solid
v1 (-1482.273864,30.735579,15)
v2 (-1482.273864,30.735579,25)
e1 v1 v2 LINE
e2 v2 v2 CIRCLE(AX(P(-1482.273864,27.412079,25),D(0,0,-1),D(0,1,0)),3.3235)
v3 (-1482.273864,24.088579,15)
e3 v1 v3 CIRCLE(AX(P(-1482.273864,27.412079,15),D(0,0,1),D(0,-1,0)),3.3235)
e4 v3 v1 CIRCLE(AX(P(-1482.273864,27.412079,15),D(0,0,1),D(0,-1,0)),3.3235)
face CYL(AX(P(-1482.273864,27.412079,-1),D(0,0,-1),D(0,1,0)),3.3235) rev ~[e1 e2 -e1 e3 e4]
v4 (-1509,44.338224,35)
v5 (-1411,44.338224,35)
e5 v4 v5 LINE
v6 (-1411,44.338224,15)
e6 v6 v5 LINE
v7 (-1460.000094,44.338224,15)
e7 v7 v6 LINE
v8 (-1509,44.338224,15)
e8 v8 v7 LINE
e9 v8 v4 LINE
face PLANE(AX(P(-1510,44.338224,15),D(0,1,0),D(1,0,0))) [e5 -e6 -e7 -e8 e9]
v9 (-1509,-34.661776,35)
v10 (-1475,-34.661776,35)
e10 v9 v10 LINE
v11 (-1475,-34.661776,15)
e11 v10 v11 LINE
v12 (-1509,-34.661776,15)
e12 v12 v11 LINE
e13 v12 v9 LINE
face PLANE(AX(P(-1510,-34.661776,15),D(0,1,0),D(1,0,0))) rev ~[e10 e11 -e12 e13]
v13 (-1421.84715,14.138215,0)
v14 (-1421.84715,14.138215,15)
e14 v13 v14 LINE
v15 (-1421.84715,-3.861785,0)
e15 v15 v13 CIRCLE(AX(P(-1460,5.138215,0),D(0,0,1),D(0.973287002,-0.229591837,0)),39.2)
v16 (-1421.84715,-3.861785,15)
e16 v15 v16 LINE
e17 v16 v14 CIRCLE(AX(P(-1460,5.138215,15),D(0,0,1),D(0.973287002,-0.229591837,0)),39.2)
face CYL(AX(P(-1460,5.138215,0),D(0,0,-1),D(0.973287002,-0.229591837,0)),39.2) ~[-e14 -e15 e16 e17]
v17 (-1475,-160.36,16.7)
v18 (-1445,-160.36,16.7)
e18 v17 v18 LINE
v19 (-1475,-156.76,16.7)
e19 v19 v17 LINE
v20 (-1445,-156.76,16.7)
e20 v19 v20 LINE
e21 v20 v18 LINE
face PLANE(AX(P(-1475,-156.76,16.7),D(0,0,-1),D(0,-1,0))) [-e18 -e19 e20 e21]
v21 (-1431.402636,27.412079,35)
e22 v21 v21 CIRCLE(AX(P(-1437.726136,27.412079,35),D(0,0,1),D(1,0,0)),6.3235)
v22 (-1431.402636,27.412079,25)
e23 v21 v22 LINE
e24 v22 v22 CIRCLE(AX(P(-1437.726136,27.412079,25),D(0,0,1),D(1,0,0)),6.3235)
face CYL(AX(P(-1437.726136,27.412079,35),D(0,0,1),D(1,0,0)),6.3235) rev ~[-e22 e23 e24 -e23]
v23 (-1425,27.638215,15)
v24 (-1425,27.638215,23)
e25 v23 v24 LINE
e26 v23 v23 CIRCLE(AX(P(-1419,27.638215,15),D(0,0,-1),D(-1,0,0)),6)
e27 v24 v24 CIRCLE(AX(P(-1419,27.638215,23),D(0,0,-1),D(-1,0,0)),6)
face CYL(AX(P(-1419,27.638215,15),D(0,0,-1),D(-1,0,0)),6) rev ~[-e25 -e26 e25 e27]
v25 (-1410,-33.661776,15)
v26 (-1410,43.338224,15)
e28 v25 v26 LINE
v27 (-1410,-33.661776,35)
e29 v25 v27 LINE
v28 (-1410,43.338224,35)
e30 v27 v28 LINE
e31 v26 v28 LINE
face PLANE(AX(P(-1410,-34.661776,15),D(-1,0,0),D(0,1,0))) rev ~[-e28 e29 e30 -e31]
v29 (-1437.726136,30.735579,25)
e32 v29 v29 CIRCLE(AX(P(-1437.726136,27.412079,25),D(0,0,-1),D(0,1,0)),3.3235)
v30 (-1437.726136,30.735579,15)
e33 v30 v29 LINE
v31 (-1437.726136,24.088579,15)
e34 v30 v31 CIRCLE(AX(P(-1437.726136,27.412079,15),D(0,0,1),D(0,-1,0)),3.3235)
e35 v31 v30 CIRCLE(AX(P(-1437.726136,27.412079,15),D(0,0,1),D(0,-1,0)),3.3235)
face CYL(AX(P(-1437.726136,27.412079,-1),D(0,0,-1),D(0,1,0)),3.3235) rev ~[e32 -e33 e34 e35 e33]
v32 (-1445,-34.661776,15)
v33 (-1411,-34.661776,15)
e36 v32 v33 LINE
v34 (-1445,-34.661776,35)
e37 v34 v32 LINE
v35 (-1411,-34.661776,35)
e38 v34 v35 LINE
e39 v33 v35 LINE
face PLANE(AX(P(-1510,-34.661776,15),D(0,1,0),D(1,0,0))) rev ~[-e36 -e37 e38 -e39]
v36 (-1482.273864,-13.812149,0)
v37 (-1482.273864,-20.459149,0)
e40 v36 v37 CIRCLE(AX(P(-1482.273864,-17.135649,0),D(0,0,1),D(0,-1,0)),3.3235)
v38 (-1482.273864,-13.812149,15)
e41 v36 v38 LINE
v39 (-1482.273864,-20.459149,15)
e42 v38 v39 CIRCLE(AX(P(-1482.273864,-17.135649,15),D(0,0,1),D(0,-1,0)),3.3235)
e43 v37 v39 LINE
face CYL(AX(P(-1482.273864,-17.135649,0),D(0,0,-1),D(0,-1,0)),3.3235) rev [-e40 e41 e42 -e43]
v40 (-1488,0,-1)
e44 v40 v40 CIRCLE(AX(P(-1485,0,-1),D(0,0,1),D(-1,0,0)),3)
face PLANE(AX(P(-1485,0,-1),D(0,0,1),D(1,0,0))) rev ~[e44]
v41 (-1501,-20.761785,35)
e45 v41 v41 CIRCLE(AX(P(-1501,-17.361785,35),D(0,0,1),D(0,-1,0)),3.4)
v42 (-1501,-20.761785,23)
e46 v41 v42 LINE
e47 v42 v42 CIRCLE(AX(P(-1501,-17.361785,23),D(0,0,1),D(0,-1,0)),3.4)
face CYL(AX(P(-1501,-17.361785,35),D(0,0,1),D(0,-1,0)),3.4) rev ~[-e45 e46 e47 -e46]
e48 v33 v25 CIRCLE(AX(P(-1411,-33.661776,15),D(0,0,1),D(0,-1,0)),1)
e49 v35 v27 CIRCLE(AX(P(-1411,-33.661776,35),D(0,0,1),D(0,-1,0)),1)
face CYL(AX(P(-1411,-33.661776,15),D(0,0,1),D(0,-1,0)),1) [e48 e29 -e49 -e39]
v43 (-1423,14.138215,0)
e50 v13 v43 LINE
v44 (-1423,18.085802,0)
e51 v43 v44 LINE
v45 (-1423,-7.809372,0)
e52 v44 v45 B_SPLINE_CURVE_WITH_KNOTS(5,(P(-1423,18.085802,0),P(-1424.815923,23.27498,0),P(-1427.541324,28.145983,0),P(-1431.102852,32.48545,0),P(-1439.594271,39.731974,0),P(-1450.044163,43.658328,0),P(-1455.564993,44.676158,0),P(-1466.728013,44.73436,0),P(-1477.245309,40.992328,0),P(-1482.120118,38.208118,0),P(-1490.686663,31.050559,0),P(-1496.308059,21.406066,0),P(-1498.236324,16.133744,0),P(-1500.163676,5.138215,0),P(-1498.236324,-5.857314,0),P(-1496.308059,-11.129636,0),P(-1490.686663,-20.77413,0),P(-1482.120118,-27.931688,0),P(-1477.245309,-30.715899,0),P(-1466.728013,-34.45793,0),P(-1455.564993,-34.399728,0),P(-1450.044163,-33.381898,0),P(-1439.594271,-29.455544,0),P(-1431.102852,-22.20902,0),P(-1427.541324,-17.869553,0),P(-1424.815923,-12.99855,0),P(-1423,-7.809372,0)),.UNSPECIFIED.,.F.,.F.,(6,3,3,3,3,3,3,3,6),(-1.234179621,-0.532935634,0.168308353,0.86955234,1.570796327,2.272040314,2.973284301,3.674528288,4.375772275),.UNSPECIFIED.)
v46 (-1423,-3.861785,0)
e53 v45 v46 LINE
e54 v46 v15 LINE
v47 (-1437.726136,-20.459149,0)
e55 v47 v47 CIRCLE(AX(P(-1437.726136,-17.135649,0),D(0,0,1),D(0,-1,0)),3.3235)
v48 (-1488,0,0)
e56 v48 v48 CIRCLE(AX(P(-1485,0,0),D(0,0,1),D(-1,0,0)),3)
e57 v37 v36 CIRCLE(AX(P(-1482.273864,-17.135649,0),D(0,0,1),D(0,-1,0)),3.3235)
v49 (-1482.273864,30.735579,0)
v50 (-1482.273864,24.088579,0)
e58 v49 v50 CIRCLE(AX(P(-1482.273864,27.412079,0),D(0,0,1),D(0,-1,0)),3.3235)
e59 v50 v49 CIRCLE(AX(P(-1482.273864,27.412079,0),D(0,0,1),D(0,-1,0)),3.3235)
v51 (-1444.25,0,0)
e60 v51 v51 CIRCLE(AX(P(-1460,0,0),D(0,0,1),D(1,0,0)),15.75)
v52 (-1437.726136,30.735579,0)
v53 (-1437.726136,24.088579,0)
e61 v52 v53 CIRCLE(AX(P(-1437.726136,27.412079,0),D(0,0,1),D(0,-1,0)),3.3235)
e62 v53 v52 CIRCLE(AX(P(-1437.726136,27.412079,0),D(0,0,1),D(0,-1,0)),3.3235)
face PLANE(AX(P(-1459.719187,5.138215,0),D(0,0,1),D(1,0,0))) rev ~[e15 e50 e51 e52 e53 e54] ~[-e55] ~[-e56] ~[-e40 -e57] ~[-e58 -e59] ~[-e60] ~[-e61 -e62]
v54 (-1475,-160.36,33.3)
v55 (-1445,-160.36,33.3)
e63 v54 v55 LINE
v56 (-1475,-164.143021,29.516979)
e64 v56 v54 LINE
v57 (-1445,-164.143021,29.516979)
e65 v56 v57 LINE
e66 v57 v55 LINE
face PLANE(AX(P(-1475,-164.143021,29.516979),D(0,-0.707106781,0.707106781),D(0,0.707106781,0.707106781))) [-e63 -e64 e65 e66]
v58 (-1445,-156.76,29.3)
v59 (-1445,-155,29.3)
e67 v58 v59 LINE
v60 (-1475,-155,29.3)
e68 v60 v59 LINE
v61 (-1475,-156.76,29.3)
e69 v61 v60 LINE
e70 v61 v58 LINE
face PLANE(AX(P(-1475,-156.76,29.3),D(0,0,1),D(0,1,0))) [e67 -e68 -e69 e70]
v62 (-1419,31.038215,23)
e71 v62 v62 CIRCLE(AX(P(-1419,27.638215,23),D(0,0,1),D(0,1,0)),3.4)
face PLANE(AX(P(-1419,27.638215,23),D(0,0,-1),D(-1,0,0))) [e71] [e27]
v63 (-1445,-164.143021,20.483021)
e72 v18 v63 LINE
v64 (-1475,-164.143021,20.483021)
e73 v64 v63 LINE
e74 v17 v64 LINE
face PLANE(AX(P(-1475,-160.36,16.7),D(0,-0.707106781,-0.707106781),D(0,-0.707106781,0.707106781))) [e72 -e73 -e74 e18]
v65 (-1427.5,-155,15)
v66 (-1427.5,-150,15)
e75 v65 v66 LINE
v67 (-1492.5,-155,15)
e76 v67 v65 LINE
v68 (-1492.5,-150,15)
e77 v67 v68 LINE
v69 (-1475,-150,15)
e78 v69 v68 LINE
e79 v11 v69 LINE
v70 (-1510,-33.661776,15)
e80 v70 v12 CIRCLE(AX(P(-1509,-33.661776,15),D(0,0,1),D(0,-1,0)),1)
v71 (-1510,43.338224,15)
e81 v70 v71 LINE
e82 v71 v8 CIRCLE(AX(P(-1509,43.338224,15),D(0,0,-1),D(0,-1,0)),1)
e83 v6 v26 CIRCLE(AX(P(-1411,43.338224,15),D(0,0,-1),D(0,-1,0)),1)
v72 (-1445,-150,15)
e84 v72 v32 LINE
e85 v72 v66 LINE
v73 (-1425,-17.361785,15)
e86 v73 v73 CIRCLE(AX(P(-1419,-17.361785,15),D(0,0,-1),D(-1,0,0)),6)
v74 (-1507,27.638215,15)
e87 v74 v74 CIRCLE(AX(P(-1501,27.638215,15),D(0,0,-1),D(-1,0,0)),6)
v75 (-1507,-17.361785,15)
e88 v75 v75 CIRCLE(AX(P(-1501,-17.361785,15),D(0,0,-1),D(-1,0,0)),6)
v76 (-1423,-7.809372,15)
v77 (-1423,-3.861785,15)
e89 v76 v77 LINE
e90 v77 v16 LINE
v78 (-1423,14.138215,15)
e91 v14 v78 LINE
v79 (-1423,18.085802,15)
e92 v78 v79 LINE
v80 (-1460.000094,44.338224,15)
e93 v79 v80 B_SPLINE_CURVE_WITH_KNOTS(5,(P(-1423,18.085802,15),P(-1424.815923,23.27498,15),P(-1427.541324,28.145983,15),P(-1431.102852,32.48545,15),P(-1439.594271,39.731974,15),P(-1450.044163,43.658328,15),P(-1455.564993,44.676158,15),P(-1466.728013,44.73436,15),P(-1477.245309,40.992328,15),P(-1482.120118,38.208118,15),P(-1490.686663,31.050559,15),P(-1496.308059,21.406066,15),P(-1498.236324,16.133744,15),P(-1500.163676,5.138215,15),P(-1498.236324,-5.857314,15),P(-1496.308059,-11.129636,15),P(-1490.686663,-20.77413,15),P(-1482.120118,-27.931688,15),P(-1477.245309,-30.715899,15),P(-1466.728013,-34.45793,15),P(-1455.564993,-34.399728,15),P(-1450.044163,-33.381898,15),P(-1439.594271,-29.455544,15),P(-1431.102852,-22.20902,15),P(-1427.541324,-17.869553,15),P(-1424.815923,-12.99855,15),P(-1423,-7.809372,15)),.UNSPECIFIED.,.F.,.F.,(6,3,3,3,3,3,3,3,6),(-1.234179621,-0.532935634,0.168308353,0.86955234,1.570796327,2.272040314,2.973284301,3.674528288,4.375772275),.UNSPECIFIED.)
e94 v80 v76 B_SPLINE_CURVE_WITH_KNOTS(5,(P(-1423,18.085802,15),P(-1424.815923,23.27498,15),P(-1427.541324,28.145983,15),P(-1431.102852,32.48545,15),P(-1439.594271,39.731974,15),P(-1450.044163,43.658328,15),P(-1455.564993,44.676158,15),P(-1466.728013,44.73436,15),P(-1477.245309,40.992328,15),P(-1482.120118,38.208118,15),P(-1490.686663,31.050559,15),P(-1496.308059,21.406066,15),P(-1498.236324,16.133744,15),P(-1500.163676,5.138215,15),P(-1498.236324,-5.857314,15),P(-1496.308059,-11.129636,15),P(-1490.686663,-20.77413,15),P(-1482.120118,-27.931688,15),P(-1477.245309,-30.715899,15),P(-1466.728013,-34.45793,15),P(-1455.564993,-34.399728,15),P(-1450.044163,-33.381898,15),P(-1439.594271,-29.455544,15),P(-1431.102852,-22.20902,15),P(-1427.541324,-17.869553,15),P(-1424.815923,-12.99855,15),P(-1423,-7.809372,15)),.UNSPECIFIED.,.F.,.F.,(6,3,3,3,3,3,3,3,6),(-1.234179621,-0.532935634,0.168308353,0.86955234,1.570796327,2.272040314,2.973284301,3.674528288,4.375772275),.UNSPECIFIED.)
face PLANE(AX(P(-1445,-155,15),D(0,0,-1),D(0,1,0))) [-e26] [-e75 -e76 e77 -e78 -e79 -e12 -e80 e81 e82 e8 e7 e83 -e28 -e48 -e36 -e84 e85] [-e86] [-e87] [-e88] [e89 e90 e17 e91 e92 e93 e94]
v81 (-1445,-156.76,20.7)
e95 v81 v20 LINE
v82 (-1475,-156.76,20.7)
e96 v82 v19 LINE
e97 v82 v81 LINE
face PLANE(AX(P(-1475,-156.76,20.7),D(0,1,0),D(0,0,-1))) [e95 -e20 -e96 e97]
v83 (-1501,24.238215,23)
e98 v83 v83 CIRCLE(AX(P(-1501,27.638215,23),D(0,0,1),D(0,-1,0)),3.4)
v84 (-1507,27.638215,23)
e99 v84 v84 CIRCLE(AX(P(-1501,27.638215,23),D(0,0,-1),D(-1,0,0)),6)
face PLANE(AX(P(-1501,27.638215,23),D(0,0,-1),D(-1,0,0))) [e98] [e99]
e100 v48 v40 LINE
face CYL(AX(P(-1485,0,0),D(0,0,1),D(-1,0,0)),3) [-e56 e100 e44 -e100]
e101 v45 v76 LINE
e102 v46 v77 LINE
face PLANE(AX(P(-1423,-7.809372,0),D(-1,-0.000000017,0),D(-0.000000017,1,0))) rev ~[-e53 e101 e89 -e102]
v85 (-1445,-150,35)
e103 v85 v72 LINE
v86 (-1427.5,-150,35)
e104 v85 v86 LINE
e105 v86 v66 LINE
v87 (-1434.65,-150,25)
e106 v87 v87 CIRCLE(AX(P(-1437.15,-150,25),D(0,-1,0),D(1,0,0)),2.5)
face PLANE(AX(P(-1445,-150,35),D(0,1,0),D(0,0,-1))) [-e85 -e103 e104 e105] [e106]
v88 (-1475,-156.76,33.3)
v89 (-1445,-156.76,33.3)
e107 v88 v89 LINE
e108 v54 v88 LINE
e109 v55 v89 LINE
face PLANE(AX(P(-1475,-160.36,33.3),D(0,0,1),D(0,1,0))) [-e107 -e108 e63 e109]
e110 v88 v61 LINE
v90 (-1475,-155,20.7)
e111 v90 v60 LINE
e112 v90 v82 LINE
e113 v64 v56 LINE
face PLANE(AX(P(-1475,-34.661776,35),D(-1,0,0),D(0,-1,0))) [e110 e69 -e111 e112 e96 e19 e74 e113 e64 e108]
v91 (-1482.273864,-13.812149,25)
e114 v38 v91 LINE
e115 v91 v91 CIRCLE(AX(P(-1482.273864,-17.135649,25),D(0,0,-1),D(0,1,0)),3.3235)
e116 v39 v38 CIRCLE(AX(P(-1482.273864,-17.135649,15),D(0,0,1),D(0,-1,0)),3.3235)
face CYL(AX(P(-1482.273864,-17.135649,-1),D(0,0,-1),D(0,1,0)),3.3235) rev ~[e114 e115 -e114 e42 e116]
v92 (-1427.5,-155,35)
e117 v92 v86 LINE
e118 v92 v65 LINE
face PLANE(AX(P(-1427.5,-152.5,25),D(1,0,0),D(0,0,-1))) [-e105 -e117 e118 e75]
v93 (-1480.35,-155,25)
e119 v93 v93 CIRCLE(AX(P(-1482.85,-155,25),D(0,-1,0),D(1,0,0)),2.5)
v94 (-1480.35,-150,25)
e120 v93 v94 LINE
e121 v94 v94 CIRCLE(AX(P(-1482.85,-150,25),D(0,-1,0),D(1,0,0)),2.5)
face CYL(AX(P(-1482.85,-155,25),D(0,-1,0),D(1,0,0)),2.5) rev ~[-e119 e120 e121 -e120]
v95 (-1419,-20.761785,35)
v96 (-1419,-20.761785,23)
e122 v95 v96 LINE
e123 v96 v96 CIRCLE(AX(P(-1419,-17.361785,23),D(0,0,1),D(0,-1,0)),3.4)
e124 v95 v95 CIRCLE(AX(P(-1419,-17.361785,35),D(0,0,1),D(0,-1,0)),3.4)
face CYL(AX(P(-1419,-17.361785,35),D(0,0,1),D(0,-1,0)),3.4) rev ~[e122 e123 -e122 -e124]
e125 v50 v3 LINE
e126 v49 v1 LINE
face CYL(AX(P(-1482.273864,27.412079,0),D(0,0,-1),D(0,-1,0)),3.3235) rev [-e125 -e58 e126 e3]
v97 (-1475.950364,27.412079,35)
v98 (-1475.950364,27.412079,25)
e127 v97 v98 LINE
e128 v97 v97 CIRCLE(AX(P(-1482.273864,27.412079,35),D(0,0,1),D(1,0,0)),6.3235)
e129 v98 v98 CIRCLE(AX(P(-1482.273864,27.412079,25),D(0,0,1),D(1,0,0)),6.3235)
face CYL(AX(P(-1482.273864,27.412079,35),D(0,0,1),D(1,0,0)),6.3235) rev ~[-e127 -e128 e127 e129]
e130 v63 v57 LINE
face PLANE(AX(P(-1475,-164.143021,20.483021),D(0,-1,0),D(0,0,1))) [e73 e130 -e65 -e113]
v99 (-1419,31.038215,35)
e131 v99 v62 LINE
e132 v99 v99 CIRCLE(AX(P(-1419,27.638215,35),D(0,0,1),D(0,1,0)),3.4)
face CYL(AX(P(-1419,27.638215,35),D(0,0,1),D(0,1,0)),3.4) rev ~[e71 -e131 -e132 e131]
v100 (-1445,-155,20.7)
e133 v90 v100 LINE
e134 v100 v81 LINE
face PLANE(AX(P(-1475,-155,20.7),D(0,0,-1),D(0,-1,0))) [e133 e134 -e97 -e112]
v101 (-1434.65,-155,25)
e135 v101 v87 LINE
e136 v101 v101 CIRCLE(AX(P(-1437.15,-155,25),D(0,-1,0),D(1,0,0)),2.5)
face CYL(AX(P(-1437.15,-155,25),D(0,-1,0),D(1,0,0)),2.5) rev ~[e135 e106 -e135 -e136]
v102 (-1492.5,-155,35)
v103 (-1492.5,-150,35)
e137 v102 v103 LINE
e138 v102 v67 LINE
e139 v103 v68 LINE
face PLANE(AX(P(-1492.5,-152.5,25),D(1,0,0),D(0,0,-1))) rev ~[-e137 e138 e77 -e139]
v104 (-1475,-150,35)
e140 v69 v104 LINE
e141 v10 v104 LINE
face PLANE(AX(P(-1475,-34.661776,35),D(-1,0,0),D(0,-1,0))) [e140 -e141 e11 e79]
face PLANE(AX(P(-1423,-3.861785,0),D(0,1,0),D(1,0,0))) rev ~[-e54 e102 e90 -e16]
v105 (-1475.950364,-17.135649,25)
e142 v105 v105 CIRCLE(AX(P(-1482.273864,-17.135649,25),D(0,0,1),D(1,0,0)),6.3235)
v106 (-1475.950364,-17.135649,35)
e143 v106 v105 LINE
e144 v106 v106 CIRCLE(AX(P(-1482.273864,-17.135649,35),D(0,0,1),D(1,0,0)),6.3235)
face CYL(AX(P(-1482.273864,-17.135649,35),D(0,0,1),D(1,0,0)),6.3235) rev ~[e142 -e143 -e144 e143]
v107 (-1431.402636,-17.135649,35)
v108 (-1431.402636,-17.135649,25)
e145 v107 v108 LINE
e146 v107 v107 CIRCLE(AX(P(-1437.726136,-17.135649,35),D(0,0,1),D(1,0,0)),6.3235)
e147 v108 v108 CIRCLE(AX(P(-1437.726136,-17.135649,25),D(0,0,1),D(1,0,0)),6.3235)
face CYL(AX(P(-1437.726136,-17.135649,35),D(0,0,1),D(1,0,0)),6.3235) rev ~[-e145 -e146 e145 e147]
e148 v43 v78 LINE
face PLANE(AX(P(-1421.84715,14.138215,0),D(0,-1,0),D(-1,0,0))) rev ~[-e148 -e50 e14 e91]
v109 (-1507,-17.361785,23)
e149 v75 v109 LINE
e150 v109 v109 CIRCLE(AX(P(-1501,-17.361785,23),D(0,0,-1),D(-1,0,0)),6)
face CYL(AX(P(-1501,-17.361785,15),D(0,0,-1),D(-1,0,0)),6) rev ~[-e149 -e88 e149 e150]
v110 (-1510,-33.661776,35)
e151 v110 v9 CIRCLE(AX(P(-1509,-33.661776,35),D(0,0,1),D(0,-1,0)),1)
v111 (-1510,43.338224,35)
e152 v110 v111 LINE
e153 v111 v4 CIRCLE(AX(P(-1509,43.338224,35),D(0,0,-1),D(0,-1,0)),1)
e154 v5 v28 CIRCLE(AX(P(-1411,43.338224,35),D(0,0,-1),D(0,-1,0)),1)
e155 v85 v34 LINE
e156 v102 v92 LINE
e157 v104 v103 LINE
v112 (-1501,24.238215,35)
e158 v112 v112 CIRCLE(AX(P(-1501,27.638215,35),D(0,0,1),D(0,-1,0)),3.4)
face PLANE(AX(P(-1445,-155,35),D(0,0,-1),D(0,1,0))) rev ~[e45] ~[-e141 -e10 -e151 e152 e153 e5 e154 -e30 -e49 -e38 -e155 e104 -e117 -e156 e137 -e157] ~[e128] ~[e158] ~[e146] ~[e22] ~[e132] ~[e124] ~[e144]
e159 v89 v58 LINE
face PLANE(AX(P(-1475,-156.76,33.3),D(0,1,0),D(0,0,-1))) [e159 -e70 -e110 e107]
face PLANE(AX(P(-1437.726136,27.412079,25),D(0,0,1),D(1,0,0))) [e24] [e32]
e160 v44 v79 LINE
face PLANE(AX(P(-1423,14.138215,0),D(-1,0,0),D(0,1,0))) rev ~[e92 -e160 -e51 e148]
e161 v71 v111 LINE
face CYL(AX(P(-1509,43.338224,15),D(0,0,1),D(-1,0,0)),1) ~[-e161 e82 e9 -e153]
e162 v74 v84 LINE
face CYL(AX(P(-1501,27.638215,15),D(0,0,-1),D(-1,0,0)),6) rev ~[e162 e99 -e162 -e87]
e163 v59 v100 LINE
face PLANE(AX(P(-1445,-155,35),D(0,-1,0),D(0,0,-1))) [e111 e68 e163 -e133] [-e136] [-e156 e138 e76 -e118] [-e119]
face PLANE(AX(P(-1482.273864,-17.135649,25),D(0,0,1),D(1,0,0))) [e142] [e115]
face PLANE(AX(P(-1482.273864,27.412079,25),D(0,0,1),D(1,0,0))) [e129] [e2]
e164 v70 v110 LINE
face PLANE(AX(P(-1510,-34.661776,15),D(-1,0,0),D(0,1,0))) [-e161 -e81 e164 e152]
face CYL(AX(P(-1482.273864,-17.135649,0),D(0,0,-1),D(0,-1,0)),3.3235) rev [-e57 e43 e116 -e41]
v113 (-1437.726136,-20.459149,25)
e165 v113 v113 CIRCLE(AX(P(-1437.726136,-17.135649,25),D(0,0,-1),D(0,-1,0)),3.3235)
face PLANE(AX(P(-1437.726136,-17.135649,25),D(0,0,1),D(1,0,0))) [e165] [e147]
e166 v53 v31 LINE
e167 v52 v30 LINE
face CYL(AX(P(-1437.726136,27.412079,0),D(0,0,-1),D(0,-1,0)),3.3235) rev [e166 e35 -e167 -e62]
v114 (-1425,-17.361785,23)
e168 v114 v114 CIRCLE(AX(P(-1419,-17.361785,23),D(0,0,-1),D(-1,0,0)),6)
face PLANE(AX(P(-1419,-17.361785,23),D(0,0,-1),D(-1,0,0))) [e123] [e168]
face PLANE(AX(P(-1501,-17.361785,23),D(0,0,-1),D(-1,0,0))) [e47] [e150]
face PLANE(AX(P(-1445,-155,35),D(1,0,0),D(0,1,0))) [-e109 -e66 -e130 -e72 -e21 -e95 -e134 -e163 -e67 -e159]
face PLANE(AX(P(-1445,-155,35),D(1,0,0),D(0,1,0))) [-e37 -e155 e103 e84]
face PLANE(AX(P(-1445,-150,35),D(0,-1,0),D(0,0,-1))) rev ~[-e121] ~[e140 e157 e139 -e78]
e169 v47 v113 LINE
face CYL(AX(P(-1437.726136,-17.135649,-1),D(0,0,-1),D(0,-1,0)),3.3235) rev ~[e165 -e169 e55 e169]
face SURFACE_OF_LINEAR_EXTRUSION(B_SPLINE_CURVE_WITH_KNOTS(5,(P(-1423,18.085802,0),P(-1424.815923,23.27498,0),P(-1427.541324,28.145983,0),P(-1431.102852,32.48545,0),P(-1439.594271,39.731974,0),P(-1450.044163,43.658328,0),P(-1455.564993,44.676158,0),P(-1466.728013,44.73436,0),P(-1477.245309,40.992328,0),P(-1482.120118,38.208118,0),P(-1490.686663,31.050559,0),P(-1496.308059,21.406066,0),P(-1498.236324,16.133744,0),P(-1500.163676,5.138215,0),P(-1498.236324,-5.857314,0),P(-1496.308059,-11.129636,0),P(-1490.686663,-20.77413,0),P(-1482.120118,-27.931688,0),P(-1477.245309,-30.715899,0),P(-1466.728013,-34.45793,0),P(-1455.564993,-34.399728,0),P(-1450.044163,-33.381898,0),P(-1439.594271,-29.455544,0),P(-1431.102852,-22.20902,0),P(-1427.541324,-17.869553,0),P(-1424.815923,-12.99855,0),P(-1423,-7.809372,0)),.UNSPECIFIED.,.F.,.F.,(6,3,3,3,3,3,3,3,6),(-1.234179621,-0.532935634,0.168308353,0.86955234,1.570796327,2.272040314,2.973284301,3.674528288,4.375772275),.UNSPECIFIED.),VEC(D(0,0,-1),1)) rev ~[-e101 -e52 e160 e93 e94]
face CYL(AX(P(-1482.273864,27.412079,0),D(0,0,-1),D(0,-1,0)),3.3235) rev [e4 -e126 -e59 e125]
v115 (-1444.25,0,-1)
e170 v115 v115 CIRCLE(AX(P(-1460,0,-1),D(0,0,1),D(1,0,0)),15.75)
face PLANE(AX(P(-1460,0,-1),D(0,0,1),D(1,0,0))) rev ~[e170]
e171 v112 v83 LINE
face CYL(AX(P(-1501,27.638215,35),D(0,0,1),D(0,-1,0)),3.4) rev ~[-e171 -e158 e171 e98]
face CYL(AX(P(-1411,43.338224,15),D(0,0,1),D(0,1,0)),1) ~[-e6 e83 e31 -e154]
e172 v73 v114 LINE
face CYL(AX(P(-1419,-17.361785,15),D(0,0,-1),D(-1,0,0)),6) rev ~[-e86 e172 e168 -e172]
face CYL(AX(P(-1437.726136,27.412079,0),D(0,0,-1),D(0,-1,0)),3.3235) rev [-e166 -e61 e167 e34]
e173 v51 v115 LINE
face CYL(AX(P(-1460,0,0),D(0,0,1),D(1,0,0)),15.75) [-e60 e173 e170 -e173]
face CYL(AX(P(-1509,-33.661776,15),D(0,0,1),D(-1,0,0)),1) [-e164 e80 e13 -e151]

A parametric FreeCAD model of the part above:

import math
import FreeCAD as App
import Part
import Sketcher
from FreeCAD import Vector
Q = App.Units.Quantity


def edges_at(feature, points):
    """Names of the edges that pass closest to the given points."""
    edges = feature.Shape.Edges
    near = lambda p: min(range(len(edges)), key=lambda i: edges[i].distToShape(Part.Vertex(*p))[0])
    return sorted({f"Edge{near(p) + 1}" for p in points})


def add_polygon(sketch, points):
    """Adds a closed chain of lines whose ends are joined by coincident constraints."""
    first, n = sketch.GeometryCount, len(points)
    for a, b in zip(points, points[1:] + points[:1]):
        sketch.addGeometry(Part.LineSegment(App.Vector(*a, 0), App.Vector(*b, 0)), False)
    for i in range(n):
        sketch.addConstraint(Sketcher.Constraint("Coincident", first + i, 2, first + (i + 1) % n, 1))

doc = App.newDocument("Part")
body = doc.addObject("PartDesign::Body", "Body")

# Sketch on XY plane
sketch1 = body.newObject("Sketcher::SketchObject", "Sketch")
sketch1.AttachmentSupport = (doc.getObject("XY_Plane"), [""])
sketch1.MapMode = "FlatFace"
sketch1.addGeometry(Part.Circle(Vector(-1485, 0, 0), Vector(0, 0, 1), 3), False)
sketch1.addConstraint([
    Sketcher.Constraint("PointOnObject", 0, 3, -1),
    Sketcher.Constraint("Diameter", 0, Q("6 mm")),
    Sketcher.Constraint("DistanceX", 0, 3, -1, 1, Q("1485 mm")),
])
pad1 = body.newObject("PartDesign::Pad", "Pad")
pad1.Profile = sketch1
pad1.Length = 1
pad1.Reversed = True
body2 = doc.addObject("PartDesign::Body", "Body001")

# Sketch on XY plane
sketch2 = body2.newObject("Sketcher::SketchObject", "Sketch001")
sketch2.AttachmentSupport = (doc.getObject("XY_Plane001"), [""])
sketch2.MapMode = "FlatFace"
sketch2.addGeometry(Part.Circle(Vector(-1460, 0, 0), Vector(0, 0, 1), 16), False)
sketch2.addConstraint([
    Sketcher.Constraint("PointOnObject", 0, 3, -1),
    Sketcher.Constraint("Diameter", 0, Q("31.5 mm")),
    Sketcher.Constraint("DistanceX", 0, 3, -1, 1, Q("1460 mm")),
])
pad2 = body2.newObject("PartDesign::Pad", "Pad001")
pad2.Profile = sketch2
pad2.Length = 1
pad2.Reversed = True
body.AllowCompound = True
doc.recompute()

boolean = body.newObject("PartDesign::Boolean", "Boolean")
boolean.Type = "Fuse"
boolean.addObjects([body2])

# Sketch on XY plane
sketch3 = body.newObject("Sketcher::SketchObject", "Sketch002")
sketch3.AttachmentSupport = (doc.getObject("XY_Plane"), [""])
sketch3.MapMode = "FlatFace"
sketch3.addGeometry([
    Part.LineSegment(Vector(-1423, 14.138215, 0), Vector(-1423, 18.085802, 0)),  # 0
    Part.BSplineCurve([Vector(-1423, 18.085802, 0), Vector(-1424.815923, 23.27498, 0), Vector(-1427.541324, 28.145983, 0), Vector(-1431.102852, 32.48545, 0), Vector(-1439.594271, 39.731974, 0), Vector(-1450.044163, 43.658328, 0), Vector(-1455.564993, 44.676158, 0), Vector(-1466.728013, 44.73436, 0), Vector(-1477.245309, 40.992328, 0), Vector(-1482.120118, 38.208118, 0), Vector(-1490.686663, 31.050559, 0), Vector(-1496.308059, 21.406066, 0), Vector(-1498.236324, 16.133744, 0), Vector(-1500.163676, 5.138215, 0), Vector(-1498.236324, -5.857314, 0), Vector(-1496.308059, -11.129636, 0), Vector(-1490.686663, -20.77413, 0), Vector(-1482.120118, -27.931688, 0), Vector(-1477.245309, -30.715899, 0), Vector(-1466.728013, -34.45793, 0), Vector(-1455.564993, -34.399728, 0), Vector(-1450.044163, -33.381898, 0), Vector(-1439.594271, -29.455544, 0), Vector(-1431.102852, -22.20902, 0), Vector(-1427.541324, -17.869553, 0), Vector(-1424.815923, -12.99855, 0), Vector(-1423, -7.809372, 0)], [6, 3, 3, 3, 3, 3, 3, 3, 6], [-1.234179621, -0.532935634, 0.168308353, 0.86955234, 1.570796327, 2.272040314, 2.973284301, 3.674528288, 4.375772275], False, 5, [1, 1, 1, 1, 1, 1, 1, 1, 1, 1, 1, 1, 1, 1, 1, 1, 1, 1, 1, 1, 1, 1, 1, 1, 1, 1, 1], False),  # 1
    Part.LineSegment(Vector(-1423, -7.809372, 0), Vector(-1423, -3.861785, 0)),  # 2
    Part.LineSegment(Vector(-1423, -3.861785, 0), Vector(-1421.84715, -3.861785, 0)),  # 3
    Part.ArcOfCircle(Part.Circle(Vector(-1460, 5.138215, 0), Vector(0, 0, 1), 39.2), math.radians(-13.273043), math.radians(13.273043)),  # 4
    Part.LineSegment(Vector(-1421.84715, 14.138215, 0), Vector(-1423, 14.138215, 0)),  # 5
    Part.Circle(Vector(-1482.273864, -17.135649, 0), Vector(0, 0, 1), 3.3235),  # 6
    Part.Circle(Vector(-1437.726136, -17.135649, 0), Vector(0, 0, 1), 3.3235),  # 7
    Part.Circle(Vector(-1482.273864, 27.412079, 0), Vector(0, 0, 1), 3.3235),  # 8
    Part.Circle(Vector(-1437.726136, 27.412079, 0), Vector(0, 0, 1), 3.3235),  # 9
], False)
sketch3.addConstraint([
    Sketcher.Constraint("Block", 1),
    Sketcher.Constraint("Coincident", 0, 2, 1, 1),
    Sketcher.Constraint("Coincident", 1, 2, 2, 1),
    Sketcher.Constraint("Coincident", 2, 2, 3, 1),
    Sketcher.Constraint("Coincident", 3, 2, 4, 1),
    Sketcher.Constraint("Coincident", 4, 2, 5, 1),
    Sketcher.Constraint("Coincident", 5, 2, 0, 1),
    Sketcher.Constraint("Vertical", 0),
    Sketcher.Constraint("Vertical", 2),
    Sketcher.Constraint("Horizontal", 3),
    Sketcher.Constraint("Horizontal", 5),
    Sketcher.Constraint("Equal", 6, 7),
    Sketcher.Constraint("Equal", 7, 8),
    Sketcher.Constraint("Equal", 8, 9),
    Sketcher.Constraint("Horizontal", 6, 3, 7, 3),
    Sketcher.Constraint("Horizontal", 8, 3, 9, 3),
    Sketcher.Constraint("Vertical", 6, 3, 8, 3),
    Sketcher.Constraint("Vertical", 7, 3, 9, 3),
    Sketcher.Constraint("Vertical", 3, 2, 4, 2),
    Sketcher.Constraint("Equal", 0, 2),
    Sketcher.Constraint("Radius", 4, Q("39.2 mm")),
    Sketcher.Constraint("Diameter", 6, Q("6.647 mm")),
    Sketcher.Constraint("DistanceX", 4, 3, -1, 1, Q("1460 mm")),
    Sketcher.Constraint("DistanceY", 2, 2, 4, 3, Q("9 mm")),
    Sketcher.Constraint("DistanceY", 6, 3, -1, 1, Q("17.135649 mm")),
    Sketcher.Constraint("DistanceY", -1, 1, 8, 3, Q("27.412079 mm")),
    Sketcher.Constraint("DistanceX", 6, 3, -1, 1, Q("1482.273864 mm")),
    Sketcher.Constraint("DistanceX", 7, 3, -1, 1, Q("1437.726136 mm")),
])
pad3 = body.newObject("PartDesign::Pad", "Pad002")
pad3.Profile = sketch3
pad3.Length = 15

# Sketch on XY plane
sketch4 = body.newObject("Sketcher::SketchObject", "Sketch003")
sketch4.AttachmentSupport = (doc.getObject("XY_Plane"), [""])
sketch4.MapMode = "FlatFace"
sketch4.AttachmentOffset = App.Placement(Vector(0, 0, 15), App.Rotation())
add_polygon(sketch4, [(-1510, 44), (-1510, -35), (-1410, -35), (-1410, 44)])  # lines 0-3
sketch4.addConstraint([
    Sketcher.Constraint("Vertical", 0),
    Sketcher.Constraint("Horizontal", 1),
    Sketcher.Constraint("Vertical", 2),
    Sketcher.Constraint("Horizontal", 3),
    Sketcher.Constraint("DistanceX", 1, 1, 1, 2, Q("100 mm")),
    Sketcher.Constraint("DistanceY", 0, 2, 0, 1, Q("79 mm")),
    Sketcher.Constraint("DistanceX", 0, 2, -1, 1, Q("1510 mm")),
    Sketcher.Constraint("DistanceY", 0, 2, -1, 1, Q("34.661776 mm")),
])
pad4 = body.newObject("PartDesign::Pad", "Pad003")
pad4.Profile = sketch4
pad4.Length = 20

# Sketch on XY plane
sketch5 = body.newObject("Sketcher::SketchObject", "Sketch004")
sketch5.AttachmentSupport = (doc.getObject("XY_Plane"), [""])
sketch5.MapMode = "FlatFace"
sketch5.AttachmentOffset = App.Placement(Vector(0, 0, -1), App.Rotation())
sketch5.addGeometry([
    Part.Circle(Vector(-1437.7, -17.1, 0), Vector(0, 0, 1), 3.3),
    Part.Circle(Vector(-1437.7, 27.4, 0), Vector(0, 0, 1), 3.3),
    Part.Circle(Vector(-1482.3, 27.4, 0), Vector(0, 0, 1), 3.3),
    Part.Circle(Vector(-1482.3, -17.1, 0), Vector(0, 0, 1), 3.3),
], False)
sketch5.addConstraint([
    Sketcher.Constraint("Equal", 0, 1),
    Sketcher.Constraint("Equal", 1, 2),
    Sketcher.Constraint("Equal", 2, 3),
    Sketcher.Constraint("Horizontal", 1, 3, 2, 3),
    Sketcher.Constraint("Horizontal", 0, 3, 3, 3),
    Sketcher.Constraint("Vertical", 0, 3, 1, 3),
    Sketcher.Constraint("Vertical", 2, 3, 3, 3),
    Sketcher.Constraint("Diameter", 0, Q("6.647 mm")),
    Sketcher.Constraint("DistanceY", 0, 3, -1, 1, Q("17.135649 mm")),
    Sketcher.Constraint("DistanceY", -1, 1, 1, 3, Q("27.412079 mm")),
    Sketcher.Constraint("DistanceX", 0, 3, -1, 1, Q("1437.726136 mm")),
    Sketcher.Constraint("DistanceX", 2, 3, -1, 1, Q("1482.273864 mm")),
])
pocket1 = body.newObject("PartDesign::Pocket", "Pocket")
pocket1.Profile = sketch5
pocket1.Length = 36
pocket1.Reversed = True
doc.recompute()

fillet = body.newObject("PartDesign::Fillet", "Fillet")
fillet.Base = (pocket1, edges_at(pocket1, [
    (-1510, -34.662, 25),
    (-1510, 44.338, 25),
    (-1410, -34.662, 25),
    (-1410, 44.338, 25),
]))
fillet.Radius = 1

# Sketch on XY plane
sketch6 = body.newObject("Sketcher::SketchObject", "Sketch005")
sketch6.AttachmentSupport = (doc.getObject("XY_Plane"), [""])
sketch6.MapMode = "FlatFace"
sketch6.AttachmentOffset = App.Placement(Vector(0, 0, 35), App.Rotation())
add_polygon(sketch6, [(-1475, -35), (-1475, -155), (-1445, -155), (-1445, -35)])  # lines 0-3
sketch6.addConstraint([
    Sketcher.Constraint("Vertical", 0),
    Sketcher.Constraint("Horizontal", 1),
    Sketcher.Constraint("Vertical", 2),
    Sketcher.Constraint("Horizontal", 3),
    Sketcher.Constraint("DistanceX", 1, 1, 1, 2, Q("30 mm")),
    Sketcher.Constraint("DistanceX", 0, 2, -1, 1, Q("1475 mm")),
    Sketcher.Constraint("DistanceY", 0, 2, -1, 1, Q("155 mm")),
    Sketcher.Constraint("DistanceY", 0, 2, 0, 1, Q("120.338224 mm")),
])
pad5 = body.newObject("PartDesign::Pad", "Pad004")
pad5.Profile = sketch6
pad5.Length = 20
pad5.Reversed = True

# Sketch on YZ plane
sketch7 = body.newObject("Sketcher::SketchObject", "Sketch006")
sketch7.AttachmentSupport = (doc.getObject("YZ_Plane"), [""])
sketch7.MapMode = "FlatFace"
sketch7.AttachmentOffset = App.Placement(Vector(0, 0, -1475), App.Rotation())
add_polygon(sketch7, [(-155, 20.7), (-156.8, 20.7), (-156.8, 16.7), (-160.4, 16.7), (-164.1, 20.5), (-164.1, 29.5), (-160.4, 33.3), (-156.8, 33.3), (-156.8, 29.3), (-155, 29.3)])  # lines 0-9
sketch7.addConstraint([
    Sketcher.Constraint("Horizontal", 0),
    Sketcher.Constraint("Vertical", 1),
    Sketcher.Constraint("Horizontal", 2),
    Sketcher.Constraint("Vertical", 4),
    Sketcher.Constraint("Horizontal", 6),
    Sketcher.Constraint("Vertical", 7),
    Sketcher.Constraint("Horizontal", 8),
    Sketcher.Constraint("Vertical", 9),
    Sketcher.Constraint("Perpendicular", 3, 5),
    Sketcher.Constraint("Vertical", 2, 2, 5, 2),
    Sketcher.Constraint("Vertical", 1, 2, 6, 2),
    Sketcher.Constraint("Equal", 1, 7),
    Sketcher.Constraint("Equal", 3, 5),
    Sketcher.Constraint("DistanceY", 1, 2, 1, 1, Q("4 mm")),
    Sketcher.Constraint("DistanceX", 2, 2, 2, 1, Q("3.6 mm")),
    Sketcher.Constraint("DistanceY", 9, 2, 9, 1, Q("8.6 mm")),
    Sketcher.Constraint("DistanceX", 8, 2, -1, 1, Q("155 mm")),
    Sketcher.Constraint("DistanceX", 0, 2, 0, 1, Q("1.76 mm")),
    Sketcher.Constraint("DistanceY", -1, 1, 0, 2, Q("20.7 mm")),
    Sketcher.Constraint("Distance", 3, Q("5.35 mm")),
])
pad6 = body.newObject("PartDesign::Pad", "Pad005")
pad6.Profile = sketch7
pad6.Length = 30

# Sketch on YZ plane
sketch8 = body.newObject("Sketcher::SketchObject", "Sketch007")
sketch8.AttachmentSupport = (doc.getObject("YZ_Plane"), [""])
sketch8.MapMode = "FlatFace"
sketch8.AttachmentOffset = App.Placement(Vector(0, 0, -1445), App.Rotation())
add_polygon(sketch8, [(-150, 35), (-155, 35), (-155, 15), (-150, 15)])  # lines 0-3
sketch8.addConstraint([
    Sketcher.Constraint("Horizontal", 0),
    Sketcher.Constraint("Vertical", 1),
    Sketcher.Constraint("Horizontal", 2),
    Sketcher.Constraint("Vertical", 3),
    Sketcher.Constraint("DistanceX", 0, 2, 0, 1, Q("5 mm")),
    Sketcher.Constraint("DistanceY", 1, 2, 1, 1, Q("20 mm")),
    Sketcher.Constraint("DistanceX", 0, 2, -1, 1, Q("155 mm")),
    Sketcher.Constraint("DistanceY", -1, 1, 0, 2, Q("35 mm")),
])
pad7 = body.newObject("PartDesign::Pad", "Pad006")
pad7.Profile = sketch8
pad7.Type = "TwoLengths"
pad7.Length = 17.5
pad7.Length2 = 47.5

# Sketch on XZ plane
sketch9 = body.newObject("Sketcher::SketchObject", "Sketch008")
sketch9.AttachmentSupport = (doc.getObject("XZ_Plane"), [""])
sketch9.MapMode = "FlatFace"
sketch9.AttachmentOffset = App.Placement(Vector(0, 0, 155), App.Rotation())
sketch9.addGeometry(Part.Circle(Vector(-1437.2, 25, 0), Vector(0, 0, 1), 2.5), False)
sketch9.addConstraint([
    Sketcher.Constraint("Diameter", 0, Q("5 mm")),
    Sketcher.Constraint("DistanceY", -1, 1, 0, 3, Q("25 mm")),
    Sketcher.Constraint("DistanceX", 0, 3, -1, 1, Q("1437.15 mm")),
])
pocket2 = body.newObject("PartDesign::Pocket", "Pocket001")
pocket2.Profile = sketch9
pocket2.Type = "UpToFirst"

# Sketch on XZ plane
sketch10 = body.newObject("Sketcher::SketchObject", "Sketch009")
sketch10.AttachmentSupport = (doc.getObject("XZ_Plane"), [""])
sketch10.MapMode = "FlatFace"
sketch10.AttachmentOffset = App.Placement(Vector(0, 0, 155), App.Rotation())
sketch10.addGeometry(Part.Circle(Vector(-1482.8, 25, 0), Vector(0, 0, 1), 2.5), False)
sketch10.addConstraint([
    Sketcher.Constraint("Diameter", 0, Q("5 mm")),
    Sketcher.Constraint("DistanceY", -1, 1, 0, 3, Q("25 mm")),
    Sketcher.Constraint("DistanceX", 0, 3, -1, 1, Q("1482.85 mm")),
])
pocket3 = body.newObject("PartDesign::Pocket", "Pocket002")
pocket3.Profile = sketch10
pocket3.Type = "UpToFirst"

# Sketch on XY plane
sketch11 = body.newObject("Sketcher::SketchObject", "Sketch010")
sketch11.AttachmentSupport = (doc.getObject("XY_Plane"), [""])
sketch11.MapMode = "FlatFace"
sketch11.AttachmentOffset = App.Placement(Vector(0, 0, 35), App.Rotation())
sketch11.addGeometry([
    Part.Circle(Vector(-1482.3, 27.4, 0), Vector(0, 0, 1), 6.3),  # 0
    Part.Circle(Vector(-1482.3, 27.4, 0), Vector(0, 0, 1), 3.3),  # 1
    Part.Circle(Vector(-1482.3, -17.1, 0), Vector(0, 0, 1), 6.3),  # 2
    Part.Circle(Vector(-1482.3, -17.1, 0), Vector(0, 0, 1), 3.3),  # 3
    Part.Circle(Vector(-1437.7, -17.1, 0), Vector(0, 0, 1), 6.3),  # 4
    Part.Circle(Vector(-1437.7, -17.1, 0), Vector(0, 0, 1), 3.3),  # 5
    Part.Circle(Vector(-1437.7, 27.4, 0), Vector(0, 0, 1), 6.3),  # 6
    Part.Circle(Vector(-1437.7, 27.4, 0), Vector(0, 0, 1), 3.3),  # 7
], False)
sketch11.addConstraint([
    Sketcher.Constraint("Coincident", 1, 3, 0, 3),
    Sketcher.Constraint("Coincident", 3, 3, 2, 3),
    Sketcher.Constraint("Coincident", 5, 3, 4, 3),
    Sketcher.Constraint("Coincident", 7, 3, 6, 3),
    Sketcher.Constraint("Equal", 0, 2),
    Sketcher.Constraint("Equal", 1, 3),
    Sketcher.Constraint("Equal", 2, 4),
    Sketcher.Constraint("Equal", 3, 5),
    Sketcher.Constraint("Equal", 4, 6),
    Sketcher.Constraint("Equal", 5, 7),
    Sketcher.Constraint("Horizontal", 3, 3, 4, 3),
    Sketcher.Constraint("Horizontal", 1, 3, 6, 3),
    Sketcher.Constraint("Vertical", 1, 3, 2, 3),
    Sketcher.Constraint("Vertical", 5, 3, 6, 3),
    Sketcher.Constraint("Diameter", 0, Q("12.647 mm")),
    Sketcher.Constraint("Diameter", 1, Q("6.647 mm")),
    Sketcher.Constraint("DistanceY", -1, 1, 0, 3, Q("27.412079 mm")),
    Sketcher.Constraint("DistanceY", 2, 3, -1, 1, Q("17.135649 mm")),
    Sketcher.Constraint("DistanceX", 0, 3, -1, 1, Q("1482.273864 mm")),
    Sketcher.Constraint("DistanceX", 4, 3, -1, 1, Q("1437.726136 mm")),
])
pocket4 = body.newObject("PartDesign::Pocket", "Pocket003")
pocket4.Profile = sketch11
pocket4.Length = 10

# Sketch on XY plane
sketch12 = body.newObject("Sketcher::SketchObject", "Sketch011")
sketch12.AttachmentSupport = (doc.getObject("XY_Plane"), [""])
sketch12.MapMode = "FlatFace"
sketch12.AttachmentOffset = App.Placement(Vector(0, 0, 35), App.Rotation())
sketch12.addGeometry([
    Part.Circle(Vector(-1419, 27.6, 0), Vector(0, 0, 1), 3.4),
    Part.Circle(Vector(-1419, -17.4, 0), Vector(0, 0, 1), 3.4),
    Part.Circle(Vector(-1501, -17.4, 0), Vector(0, 0, 1), 3.4),
    Part.Circle(Vector(-1501, 27.6, 0), Vector(0, 0, 1), 3.4),
], False)
sketch12.addConstraint([
    Sketcher.Constraint("Equal", 0, 1),
    Sketcher.Constraint("Equal", 1, 2),
    Sketcher.Constraint("Equal", 2, 3),
    Sketcher.Constraint("Horizontal", 1, 3, 2, 3),
    Sketcher.Constraint("Horizontal", 0, 3, 3, 3),
    Sketcher.Constraint("Vertical", 0, 3, 1, 3),
    Sketcher.Constraint("Vertical", 2, 3, 3, 3),
    Sketcher.Constraint("Diameter", 0, Q("6.8 mm")),
    Sketcher.Constraint("DistanceX", 0, 3, -1, 1, Q("1419 mm")),
    Sketcher.Constraint("DistanceX", 2, 3, -1, 1, Q("1501 mm")),
    Sketcher.Constraint("DistanceY", 1, 3, 0, 3, Q("45 mm")),
    Sketcher.Constraint("DistanceY", -1, 1, 0, 3, Q("27.638215 mm")),
])
pocket5 = body.newObject("PartDesign::Pocket", "Pocket004")
pocket5.Profile = sketch12
pocket5.Length = 20

# Sketch on XY plane
sketch13 = body.newObject("Sketcher::SketchObject", "Sketch012")
sketch13.AttachmentSupport = (doc.getObject("XY_Plane"), [""])
sketch13.MapMode = "FlatFace"
sketch13.AttachmentOffset = App.Placement(Vector(0, 0, 15), App.Rotation())
sketch13.addGeometry([
    Part.Circle(Vector(-1419, 28, 0), Vector(0, 0, 1), 6),
    Part.Circle(Vector(-1501, -17, 0), Vector(0, 0, 1), 6),
    Part.Circle(Vector(-1501, 28, 0), Vector(0, 0, 1), 6),
    Part.Circle(Vector(-1419, -17, 0), Vector(0, 0, 1), 6),
], False)
sketch13.addConstraint([
    Sketcher.Constraint("Equal", 0, 1),
    Sketcher.Constraint("Equal", 1, 2),
    Sketcher.Constraint("Equal", 2, 3),
    Sketcher.Constraint("Horizontal", 0, 3, 2, 3),
    Sketcher.Constraint("Horizontal", 1, 3, 3, 3),
    Sketcher.Constraint("Vertical", 1, 3, 2, 3),
    Sketcher.Constraint("Vertical", 0, 3, 3, 3),
    Sketcher.Constraint("Diameter", 0, Q("12 mm")),
    Sketcher.Constraint("DistanceX", 0, 3, -1, 1, Q("1419 mm")),
    Sketcher.Constraint("DistanceX", 1, 3, -1, 1, Q("1501 mm")),
    Sketcher.Constraint("DistanceY", 1, 3, 0, 3, Q("45 mm")),
    Sketcher.Constraint("DistanceY", -1, 1, 0, 3, Q("27.638215 mm")),
])
pocket6 = body.newObject("PartDesign::Pocket", "Pocket005")
pocket6.Profile = sketch13
pocket6.Length = 8
pocket6.Reversed = True

doc.recompute()
